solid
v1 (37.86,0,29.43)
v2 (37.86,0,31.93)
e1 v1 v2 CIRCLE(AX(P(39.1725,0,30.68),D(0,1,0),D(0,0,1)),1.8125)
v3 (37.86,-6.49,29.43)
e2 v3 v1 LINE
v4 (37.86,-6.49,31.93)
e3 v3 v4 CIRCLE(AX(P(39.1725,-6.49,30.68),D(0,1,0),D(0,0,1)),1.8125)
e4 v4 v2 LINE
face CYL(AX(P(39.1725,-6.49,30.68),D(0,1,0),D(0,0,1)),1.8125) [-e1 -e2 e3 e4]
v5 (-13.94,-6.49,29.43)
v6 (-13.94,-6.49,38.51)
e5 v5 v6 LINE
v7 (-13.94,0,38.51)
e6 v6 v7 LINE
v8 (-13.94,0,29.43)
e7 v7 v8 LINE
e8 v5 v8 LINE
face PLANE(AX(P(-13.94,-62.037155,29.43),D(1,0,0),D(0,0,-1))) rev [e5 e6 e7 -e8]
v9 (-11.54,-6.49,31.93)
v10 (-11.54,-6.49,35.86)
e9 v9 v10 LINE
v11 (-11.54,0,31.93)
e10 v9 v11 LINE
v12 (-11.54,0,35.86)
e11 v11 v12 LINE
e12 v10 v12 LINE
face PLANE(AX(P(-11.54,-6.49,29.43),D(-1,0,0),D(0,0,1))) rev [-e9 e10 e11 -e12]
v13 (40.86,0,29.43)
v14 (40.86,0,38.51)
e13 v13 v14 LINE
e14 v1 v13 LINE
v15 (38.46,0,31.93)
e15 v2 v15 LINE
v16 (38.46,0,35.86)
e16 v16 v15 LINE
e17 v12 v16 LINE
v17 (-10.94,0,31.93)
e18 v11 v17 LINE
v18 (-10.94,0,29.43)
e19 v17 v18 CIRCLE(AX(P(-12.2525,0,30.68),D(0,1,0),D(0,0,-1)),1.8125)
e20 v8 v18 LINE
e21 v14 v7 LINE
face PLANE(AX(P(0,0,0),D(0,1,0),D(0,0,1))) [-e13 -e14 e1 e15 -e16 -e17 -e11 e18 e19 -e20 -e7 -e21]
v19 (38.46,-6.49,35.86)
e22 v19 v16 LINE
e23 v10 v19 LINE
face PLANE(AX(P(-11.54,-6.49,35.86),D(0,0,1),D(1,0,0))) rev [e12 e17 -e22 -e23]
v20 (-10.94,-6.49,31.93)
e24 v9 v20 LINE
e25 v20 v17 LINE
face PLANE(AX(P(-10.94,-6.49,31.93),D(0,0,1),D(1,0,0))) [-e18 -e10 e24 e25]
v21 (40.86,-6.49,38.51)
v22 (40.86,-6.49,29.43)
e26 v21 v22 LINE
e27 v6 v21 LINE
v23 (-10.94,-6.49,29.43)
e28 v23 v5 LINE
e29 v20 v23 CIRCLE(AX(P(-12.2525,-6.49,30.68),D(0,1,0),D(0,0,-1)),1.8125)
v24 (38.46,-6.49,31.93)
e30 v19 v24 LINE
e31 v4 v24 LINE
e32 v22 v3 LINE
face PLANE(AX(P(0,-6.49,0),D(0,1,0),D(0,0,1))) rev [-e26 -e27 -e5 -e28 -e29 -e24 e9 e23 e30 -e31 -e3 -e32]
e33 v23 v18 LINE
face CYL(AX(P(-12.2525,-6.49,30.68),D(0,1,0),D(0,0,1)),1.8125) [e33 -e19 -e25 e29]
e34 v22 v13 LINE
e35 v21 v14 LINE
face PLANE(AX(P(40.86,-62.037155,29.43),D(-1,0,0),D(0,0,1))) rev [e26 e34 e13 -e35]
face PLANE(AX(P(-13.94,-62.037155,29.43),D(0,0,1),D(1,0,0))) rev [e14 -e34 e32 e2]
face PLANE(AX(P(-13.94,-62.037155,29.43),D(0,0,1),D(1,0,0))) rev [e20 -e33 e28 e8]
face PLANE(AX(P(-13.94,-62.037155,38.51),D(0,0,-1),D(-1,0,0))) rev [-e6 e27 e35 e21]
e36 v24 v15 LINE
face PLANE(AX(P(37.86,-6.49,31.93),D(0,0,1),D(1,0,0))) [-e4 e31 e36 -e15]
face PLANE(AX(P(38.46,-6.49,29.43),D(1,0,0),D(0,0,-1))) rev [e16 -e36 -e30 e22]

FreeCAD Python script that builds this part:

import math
import FreeCAD as App
import Part
import Sketcher

V = App.Vector
Q = App.Units.Quantity


def add_polygon(sketch, points):
    """Adds a closed chain of lines whose ends are joined by coincident constraints."""
    first, n = sketch.GeometryCount, len(points)
    for a, b in zip(points, points[1:] + points[:1]):
        sketch.addGeometry(Part.LineSegment(App.Vector(*a, 0), App.Vector(*b, 0)), False)
    for i in range(n):
        sketch.addConstraint(Sketcher.Constraint("Coincident", first + i, 2, first + (i + 1) % n, 1))

doc = App.newDocument("Part")
body = doc.addObject("PartDesign::Body", "Body")

# Sketch on XZ plane
sketch1 = body.newObject("Sketcher::SketchObject", "Sketch")
sketch1.AttachmentSupport = (doc.getObject("XZ_Plane"), [""])
sketch1.MapMode = "FlatFace"
add_polygon(sketch1, [(-14, 39), (-14, 29), (41, 29), (41, 39)])  # lines 0-3
sketch1.addConstraint(Sketcher.Constraint("Vertical", 0))
sketch1.addConstraint(Sketcher.Constraint("Horizontal", 1))
sketch1.addConstraint(Sketcher.Constraint("Vertical", 2))
sketch1.addConstraint(Sketcher.Constraint("Horizontal", 3))
sketch1.addConstraint(Sketcher.Constraint("DistanceX", 1, 1, 1, 2, Q("54.8 mm")))
sketch1.addConstraint(Sketcher.Constraint("DistanceY", 0, 2, 0, 1, Q("9.08 mm")))
sketch1.addConstraint(Sketcher.Constraint("DistanceX", 0, 2, -1, 1, Q("13.94 mm")))
sketch1.addConstraint(Sketcher.Constraint("DistanceY", -1, 1, 0, 2, Q("29.43 mm")))
pad1 = body.newObject("PartDesign::Pad", "Pad")
pad1.Profile = sketch1
pad1.Length = 6.49

# Sketch on XZ plane
sketch2 = body.newObject("Sketcher::SketchObject", "Sketch001")
sketch2.AttachmentSupport = (doc.getObject("XZ_Plane"), [""])
sketch2.MapMode = "FlatFace"
add_polygon(sketch2, [(-12, 29), (-12, 36), (38, 36), (38, 29)])  # lines 0-3
sketch2.addConstraint(Sketcher.Constraint("Vertical", 0))
sketch2.addConstraint(Sketcher.Constraint("Horizontal", 1))
sketch2.addConstraint(Sketcher.Constraint("Vertical", 2))
sketch2.addConstraint(Sketcher.Constraint("Horizontal", 3))
sketch2.addConstraint(Sketcher.Constraint("DistanceX", 1, 1, 1, 2, Q("50 mm")))
sketch2.addConstraint(Sketcher.Constraint("DistanceY", 0, 1, 0, 2, Q("6.43 mm")))
sketch2.addConstraint(Sketcher.Constraint("DistanceX", 0, 2, -1, 1, Q("11.54 mm")))
sketch2.addConstraint(Sketcher.Constraint("DistanceY", -1, 1, 0, 2, Q("35.86 mm")))
pocket1 = body.newObject("PartDesign::Pocket", "Pocket")
pocket1.Profile = sketch2
pocket1.Type = "ThroughAll"
pocket1.Reversed = True

# Sketch on XZ plane
sketch3 = body.newObject("Sketcher::SketchObject", "Sketch002")
sketch3.AttachmentSupport = (doc.getObject("XZ_Plane"), [""])
sketch3.MapMode = "FlatFace"
sketch3.addGeometry(Part.LineSegment(V(38.5, 29.4, 0), V(37.9, 29.4, 0)), False)
sketch3.addGeometry(Part.ArcOfCircle(Part.Circle(V(39.2, 30.7, 0), V(0, 0, 1), 1.8), math.radians(136), math.radians(224)), False)
sketch3.addGeometry(Part.LineSegment(V(37.9, 31.9, 0), V(38.5, 31.9, 0)), False)
sketch3.addGeometry(Part.LineSegment(V(38.5, 31.9, 0), V(38.5, 29.4, 0)), False)
sketch3.addGeometry(Part.LineSegment(V(-11.5, 31.9, 0), V(-10.9, 31.9, 0)), False)
sketch3.addGeometry(Part.ArcOfCircle(Part.Circle(V(-12.3, 30.7, 0), V(0, 0, 1), 1.8), math.radians(-44), math.radians(44)), False)
sketch3.addGeometry(Part.LineSegment(V(-10.9, 29.4, 0), V(-11.5, 29.4, 0)), False)
sketch3.addGeometry(Part.LineSegment(V(-11.5, 29.4, 0), V(-11.5, 31.9, 0)), False)
sketch3.addConstraint(Sketcher.Constraint("Coincident", 0, 2, 1, 2))
sketch3.addConstraint(Sketcher.Constraint("Coincident", 1, 1, 2, 1))
sketch3.addConstraint(Sketcher.Constraint("Coincident", 2, 2, 3, 1))
sketch3.addConstraint(Sketcher.Constraint("Coincident", 3, 2, 0, 1))
sketch3.addConstraint(Sketcher.Constraint("Coincident", 4, 2, 5, 2))
sketch3.addConstraint(Sketcher.Constraint("Coincident", 5, 1, 6, 1))
sketch3.addConstraint(Sketcher.Constraint("Coincident", 6, 2, 7, 1))
sketch3.addConstraint(Sketcher.Constraint("Coincident", 7, 2, 4, 1))
sketch3.addConstraint(Sketcher.Constraint("Horizontal", 0))
sketch3.addConstraint(Sketcher.Constraint("Horizontal", 2))
sketch3.addConstraint(Sketcher.Constraint("Vertical", 3))
sketch3.addConstraint(Sketcher.Constraint("Horizontal", 4))
sketch3.addConstraint(Sketcher.Constraint("Horizontal", 6))
sketch3.addConstraint(Sketcher.Constraint("Vertical", 7))
sketch3.addConstraint(Sketcher.Constraint("Equal", 1, 5))
sketch3.addConstraint(Sketcher.Constraint("Horizontal", 1, 3, 5, 3))
sketch3.addConstraint(Sketcher.Constraint("Horizontal", 2, 2, 4, 2))
sketch3.addConstraint(Sketcher.Constraint("Horizontal", 3, 2, 5, 1))
sketch3.addConstraint(Sketcher.Constraint("Vertical", 0, 2, 1, 1))
sketch3.addConstraint(Sketcher.Constraint("Equal", 2, 4))
sketch3.addConstraint(Sketcher.Constraint("DistanceX", 0, 2, 0, 1, Q("0.6 mm")))
sketch3.addConstraint(Sketcher.Constraint("DistanceY", 3, 2, 3, 1, Q("2.5 mm")))
sketch3.addConstraint(Sketcher.Constraint("Radius", 1, Q("1.8125 mm")))
sketch3.addConstraint(Sketcher.Constraint("DistanceX", 4, 2, 1, 1, Q("48.8 mm")))
sketch3.addConstraint(Sketcher.Constraint("DistanceY", -1, 1, 1, 3, Q("30.68 mm")))
sketch3.addConstraint(Sketcher.Constraint("DistanceX", -1, 1, 0, 2, Q("37.86 mm")))
pad2 = body.newObject("PartDesign::Pad", "Pad001")
pad2.Profile = sketch3
pad2.Length = 6.49

doc.recompute()
